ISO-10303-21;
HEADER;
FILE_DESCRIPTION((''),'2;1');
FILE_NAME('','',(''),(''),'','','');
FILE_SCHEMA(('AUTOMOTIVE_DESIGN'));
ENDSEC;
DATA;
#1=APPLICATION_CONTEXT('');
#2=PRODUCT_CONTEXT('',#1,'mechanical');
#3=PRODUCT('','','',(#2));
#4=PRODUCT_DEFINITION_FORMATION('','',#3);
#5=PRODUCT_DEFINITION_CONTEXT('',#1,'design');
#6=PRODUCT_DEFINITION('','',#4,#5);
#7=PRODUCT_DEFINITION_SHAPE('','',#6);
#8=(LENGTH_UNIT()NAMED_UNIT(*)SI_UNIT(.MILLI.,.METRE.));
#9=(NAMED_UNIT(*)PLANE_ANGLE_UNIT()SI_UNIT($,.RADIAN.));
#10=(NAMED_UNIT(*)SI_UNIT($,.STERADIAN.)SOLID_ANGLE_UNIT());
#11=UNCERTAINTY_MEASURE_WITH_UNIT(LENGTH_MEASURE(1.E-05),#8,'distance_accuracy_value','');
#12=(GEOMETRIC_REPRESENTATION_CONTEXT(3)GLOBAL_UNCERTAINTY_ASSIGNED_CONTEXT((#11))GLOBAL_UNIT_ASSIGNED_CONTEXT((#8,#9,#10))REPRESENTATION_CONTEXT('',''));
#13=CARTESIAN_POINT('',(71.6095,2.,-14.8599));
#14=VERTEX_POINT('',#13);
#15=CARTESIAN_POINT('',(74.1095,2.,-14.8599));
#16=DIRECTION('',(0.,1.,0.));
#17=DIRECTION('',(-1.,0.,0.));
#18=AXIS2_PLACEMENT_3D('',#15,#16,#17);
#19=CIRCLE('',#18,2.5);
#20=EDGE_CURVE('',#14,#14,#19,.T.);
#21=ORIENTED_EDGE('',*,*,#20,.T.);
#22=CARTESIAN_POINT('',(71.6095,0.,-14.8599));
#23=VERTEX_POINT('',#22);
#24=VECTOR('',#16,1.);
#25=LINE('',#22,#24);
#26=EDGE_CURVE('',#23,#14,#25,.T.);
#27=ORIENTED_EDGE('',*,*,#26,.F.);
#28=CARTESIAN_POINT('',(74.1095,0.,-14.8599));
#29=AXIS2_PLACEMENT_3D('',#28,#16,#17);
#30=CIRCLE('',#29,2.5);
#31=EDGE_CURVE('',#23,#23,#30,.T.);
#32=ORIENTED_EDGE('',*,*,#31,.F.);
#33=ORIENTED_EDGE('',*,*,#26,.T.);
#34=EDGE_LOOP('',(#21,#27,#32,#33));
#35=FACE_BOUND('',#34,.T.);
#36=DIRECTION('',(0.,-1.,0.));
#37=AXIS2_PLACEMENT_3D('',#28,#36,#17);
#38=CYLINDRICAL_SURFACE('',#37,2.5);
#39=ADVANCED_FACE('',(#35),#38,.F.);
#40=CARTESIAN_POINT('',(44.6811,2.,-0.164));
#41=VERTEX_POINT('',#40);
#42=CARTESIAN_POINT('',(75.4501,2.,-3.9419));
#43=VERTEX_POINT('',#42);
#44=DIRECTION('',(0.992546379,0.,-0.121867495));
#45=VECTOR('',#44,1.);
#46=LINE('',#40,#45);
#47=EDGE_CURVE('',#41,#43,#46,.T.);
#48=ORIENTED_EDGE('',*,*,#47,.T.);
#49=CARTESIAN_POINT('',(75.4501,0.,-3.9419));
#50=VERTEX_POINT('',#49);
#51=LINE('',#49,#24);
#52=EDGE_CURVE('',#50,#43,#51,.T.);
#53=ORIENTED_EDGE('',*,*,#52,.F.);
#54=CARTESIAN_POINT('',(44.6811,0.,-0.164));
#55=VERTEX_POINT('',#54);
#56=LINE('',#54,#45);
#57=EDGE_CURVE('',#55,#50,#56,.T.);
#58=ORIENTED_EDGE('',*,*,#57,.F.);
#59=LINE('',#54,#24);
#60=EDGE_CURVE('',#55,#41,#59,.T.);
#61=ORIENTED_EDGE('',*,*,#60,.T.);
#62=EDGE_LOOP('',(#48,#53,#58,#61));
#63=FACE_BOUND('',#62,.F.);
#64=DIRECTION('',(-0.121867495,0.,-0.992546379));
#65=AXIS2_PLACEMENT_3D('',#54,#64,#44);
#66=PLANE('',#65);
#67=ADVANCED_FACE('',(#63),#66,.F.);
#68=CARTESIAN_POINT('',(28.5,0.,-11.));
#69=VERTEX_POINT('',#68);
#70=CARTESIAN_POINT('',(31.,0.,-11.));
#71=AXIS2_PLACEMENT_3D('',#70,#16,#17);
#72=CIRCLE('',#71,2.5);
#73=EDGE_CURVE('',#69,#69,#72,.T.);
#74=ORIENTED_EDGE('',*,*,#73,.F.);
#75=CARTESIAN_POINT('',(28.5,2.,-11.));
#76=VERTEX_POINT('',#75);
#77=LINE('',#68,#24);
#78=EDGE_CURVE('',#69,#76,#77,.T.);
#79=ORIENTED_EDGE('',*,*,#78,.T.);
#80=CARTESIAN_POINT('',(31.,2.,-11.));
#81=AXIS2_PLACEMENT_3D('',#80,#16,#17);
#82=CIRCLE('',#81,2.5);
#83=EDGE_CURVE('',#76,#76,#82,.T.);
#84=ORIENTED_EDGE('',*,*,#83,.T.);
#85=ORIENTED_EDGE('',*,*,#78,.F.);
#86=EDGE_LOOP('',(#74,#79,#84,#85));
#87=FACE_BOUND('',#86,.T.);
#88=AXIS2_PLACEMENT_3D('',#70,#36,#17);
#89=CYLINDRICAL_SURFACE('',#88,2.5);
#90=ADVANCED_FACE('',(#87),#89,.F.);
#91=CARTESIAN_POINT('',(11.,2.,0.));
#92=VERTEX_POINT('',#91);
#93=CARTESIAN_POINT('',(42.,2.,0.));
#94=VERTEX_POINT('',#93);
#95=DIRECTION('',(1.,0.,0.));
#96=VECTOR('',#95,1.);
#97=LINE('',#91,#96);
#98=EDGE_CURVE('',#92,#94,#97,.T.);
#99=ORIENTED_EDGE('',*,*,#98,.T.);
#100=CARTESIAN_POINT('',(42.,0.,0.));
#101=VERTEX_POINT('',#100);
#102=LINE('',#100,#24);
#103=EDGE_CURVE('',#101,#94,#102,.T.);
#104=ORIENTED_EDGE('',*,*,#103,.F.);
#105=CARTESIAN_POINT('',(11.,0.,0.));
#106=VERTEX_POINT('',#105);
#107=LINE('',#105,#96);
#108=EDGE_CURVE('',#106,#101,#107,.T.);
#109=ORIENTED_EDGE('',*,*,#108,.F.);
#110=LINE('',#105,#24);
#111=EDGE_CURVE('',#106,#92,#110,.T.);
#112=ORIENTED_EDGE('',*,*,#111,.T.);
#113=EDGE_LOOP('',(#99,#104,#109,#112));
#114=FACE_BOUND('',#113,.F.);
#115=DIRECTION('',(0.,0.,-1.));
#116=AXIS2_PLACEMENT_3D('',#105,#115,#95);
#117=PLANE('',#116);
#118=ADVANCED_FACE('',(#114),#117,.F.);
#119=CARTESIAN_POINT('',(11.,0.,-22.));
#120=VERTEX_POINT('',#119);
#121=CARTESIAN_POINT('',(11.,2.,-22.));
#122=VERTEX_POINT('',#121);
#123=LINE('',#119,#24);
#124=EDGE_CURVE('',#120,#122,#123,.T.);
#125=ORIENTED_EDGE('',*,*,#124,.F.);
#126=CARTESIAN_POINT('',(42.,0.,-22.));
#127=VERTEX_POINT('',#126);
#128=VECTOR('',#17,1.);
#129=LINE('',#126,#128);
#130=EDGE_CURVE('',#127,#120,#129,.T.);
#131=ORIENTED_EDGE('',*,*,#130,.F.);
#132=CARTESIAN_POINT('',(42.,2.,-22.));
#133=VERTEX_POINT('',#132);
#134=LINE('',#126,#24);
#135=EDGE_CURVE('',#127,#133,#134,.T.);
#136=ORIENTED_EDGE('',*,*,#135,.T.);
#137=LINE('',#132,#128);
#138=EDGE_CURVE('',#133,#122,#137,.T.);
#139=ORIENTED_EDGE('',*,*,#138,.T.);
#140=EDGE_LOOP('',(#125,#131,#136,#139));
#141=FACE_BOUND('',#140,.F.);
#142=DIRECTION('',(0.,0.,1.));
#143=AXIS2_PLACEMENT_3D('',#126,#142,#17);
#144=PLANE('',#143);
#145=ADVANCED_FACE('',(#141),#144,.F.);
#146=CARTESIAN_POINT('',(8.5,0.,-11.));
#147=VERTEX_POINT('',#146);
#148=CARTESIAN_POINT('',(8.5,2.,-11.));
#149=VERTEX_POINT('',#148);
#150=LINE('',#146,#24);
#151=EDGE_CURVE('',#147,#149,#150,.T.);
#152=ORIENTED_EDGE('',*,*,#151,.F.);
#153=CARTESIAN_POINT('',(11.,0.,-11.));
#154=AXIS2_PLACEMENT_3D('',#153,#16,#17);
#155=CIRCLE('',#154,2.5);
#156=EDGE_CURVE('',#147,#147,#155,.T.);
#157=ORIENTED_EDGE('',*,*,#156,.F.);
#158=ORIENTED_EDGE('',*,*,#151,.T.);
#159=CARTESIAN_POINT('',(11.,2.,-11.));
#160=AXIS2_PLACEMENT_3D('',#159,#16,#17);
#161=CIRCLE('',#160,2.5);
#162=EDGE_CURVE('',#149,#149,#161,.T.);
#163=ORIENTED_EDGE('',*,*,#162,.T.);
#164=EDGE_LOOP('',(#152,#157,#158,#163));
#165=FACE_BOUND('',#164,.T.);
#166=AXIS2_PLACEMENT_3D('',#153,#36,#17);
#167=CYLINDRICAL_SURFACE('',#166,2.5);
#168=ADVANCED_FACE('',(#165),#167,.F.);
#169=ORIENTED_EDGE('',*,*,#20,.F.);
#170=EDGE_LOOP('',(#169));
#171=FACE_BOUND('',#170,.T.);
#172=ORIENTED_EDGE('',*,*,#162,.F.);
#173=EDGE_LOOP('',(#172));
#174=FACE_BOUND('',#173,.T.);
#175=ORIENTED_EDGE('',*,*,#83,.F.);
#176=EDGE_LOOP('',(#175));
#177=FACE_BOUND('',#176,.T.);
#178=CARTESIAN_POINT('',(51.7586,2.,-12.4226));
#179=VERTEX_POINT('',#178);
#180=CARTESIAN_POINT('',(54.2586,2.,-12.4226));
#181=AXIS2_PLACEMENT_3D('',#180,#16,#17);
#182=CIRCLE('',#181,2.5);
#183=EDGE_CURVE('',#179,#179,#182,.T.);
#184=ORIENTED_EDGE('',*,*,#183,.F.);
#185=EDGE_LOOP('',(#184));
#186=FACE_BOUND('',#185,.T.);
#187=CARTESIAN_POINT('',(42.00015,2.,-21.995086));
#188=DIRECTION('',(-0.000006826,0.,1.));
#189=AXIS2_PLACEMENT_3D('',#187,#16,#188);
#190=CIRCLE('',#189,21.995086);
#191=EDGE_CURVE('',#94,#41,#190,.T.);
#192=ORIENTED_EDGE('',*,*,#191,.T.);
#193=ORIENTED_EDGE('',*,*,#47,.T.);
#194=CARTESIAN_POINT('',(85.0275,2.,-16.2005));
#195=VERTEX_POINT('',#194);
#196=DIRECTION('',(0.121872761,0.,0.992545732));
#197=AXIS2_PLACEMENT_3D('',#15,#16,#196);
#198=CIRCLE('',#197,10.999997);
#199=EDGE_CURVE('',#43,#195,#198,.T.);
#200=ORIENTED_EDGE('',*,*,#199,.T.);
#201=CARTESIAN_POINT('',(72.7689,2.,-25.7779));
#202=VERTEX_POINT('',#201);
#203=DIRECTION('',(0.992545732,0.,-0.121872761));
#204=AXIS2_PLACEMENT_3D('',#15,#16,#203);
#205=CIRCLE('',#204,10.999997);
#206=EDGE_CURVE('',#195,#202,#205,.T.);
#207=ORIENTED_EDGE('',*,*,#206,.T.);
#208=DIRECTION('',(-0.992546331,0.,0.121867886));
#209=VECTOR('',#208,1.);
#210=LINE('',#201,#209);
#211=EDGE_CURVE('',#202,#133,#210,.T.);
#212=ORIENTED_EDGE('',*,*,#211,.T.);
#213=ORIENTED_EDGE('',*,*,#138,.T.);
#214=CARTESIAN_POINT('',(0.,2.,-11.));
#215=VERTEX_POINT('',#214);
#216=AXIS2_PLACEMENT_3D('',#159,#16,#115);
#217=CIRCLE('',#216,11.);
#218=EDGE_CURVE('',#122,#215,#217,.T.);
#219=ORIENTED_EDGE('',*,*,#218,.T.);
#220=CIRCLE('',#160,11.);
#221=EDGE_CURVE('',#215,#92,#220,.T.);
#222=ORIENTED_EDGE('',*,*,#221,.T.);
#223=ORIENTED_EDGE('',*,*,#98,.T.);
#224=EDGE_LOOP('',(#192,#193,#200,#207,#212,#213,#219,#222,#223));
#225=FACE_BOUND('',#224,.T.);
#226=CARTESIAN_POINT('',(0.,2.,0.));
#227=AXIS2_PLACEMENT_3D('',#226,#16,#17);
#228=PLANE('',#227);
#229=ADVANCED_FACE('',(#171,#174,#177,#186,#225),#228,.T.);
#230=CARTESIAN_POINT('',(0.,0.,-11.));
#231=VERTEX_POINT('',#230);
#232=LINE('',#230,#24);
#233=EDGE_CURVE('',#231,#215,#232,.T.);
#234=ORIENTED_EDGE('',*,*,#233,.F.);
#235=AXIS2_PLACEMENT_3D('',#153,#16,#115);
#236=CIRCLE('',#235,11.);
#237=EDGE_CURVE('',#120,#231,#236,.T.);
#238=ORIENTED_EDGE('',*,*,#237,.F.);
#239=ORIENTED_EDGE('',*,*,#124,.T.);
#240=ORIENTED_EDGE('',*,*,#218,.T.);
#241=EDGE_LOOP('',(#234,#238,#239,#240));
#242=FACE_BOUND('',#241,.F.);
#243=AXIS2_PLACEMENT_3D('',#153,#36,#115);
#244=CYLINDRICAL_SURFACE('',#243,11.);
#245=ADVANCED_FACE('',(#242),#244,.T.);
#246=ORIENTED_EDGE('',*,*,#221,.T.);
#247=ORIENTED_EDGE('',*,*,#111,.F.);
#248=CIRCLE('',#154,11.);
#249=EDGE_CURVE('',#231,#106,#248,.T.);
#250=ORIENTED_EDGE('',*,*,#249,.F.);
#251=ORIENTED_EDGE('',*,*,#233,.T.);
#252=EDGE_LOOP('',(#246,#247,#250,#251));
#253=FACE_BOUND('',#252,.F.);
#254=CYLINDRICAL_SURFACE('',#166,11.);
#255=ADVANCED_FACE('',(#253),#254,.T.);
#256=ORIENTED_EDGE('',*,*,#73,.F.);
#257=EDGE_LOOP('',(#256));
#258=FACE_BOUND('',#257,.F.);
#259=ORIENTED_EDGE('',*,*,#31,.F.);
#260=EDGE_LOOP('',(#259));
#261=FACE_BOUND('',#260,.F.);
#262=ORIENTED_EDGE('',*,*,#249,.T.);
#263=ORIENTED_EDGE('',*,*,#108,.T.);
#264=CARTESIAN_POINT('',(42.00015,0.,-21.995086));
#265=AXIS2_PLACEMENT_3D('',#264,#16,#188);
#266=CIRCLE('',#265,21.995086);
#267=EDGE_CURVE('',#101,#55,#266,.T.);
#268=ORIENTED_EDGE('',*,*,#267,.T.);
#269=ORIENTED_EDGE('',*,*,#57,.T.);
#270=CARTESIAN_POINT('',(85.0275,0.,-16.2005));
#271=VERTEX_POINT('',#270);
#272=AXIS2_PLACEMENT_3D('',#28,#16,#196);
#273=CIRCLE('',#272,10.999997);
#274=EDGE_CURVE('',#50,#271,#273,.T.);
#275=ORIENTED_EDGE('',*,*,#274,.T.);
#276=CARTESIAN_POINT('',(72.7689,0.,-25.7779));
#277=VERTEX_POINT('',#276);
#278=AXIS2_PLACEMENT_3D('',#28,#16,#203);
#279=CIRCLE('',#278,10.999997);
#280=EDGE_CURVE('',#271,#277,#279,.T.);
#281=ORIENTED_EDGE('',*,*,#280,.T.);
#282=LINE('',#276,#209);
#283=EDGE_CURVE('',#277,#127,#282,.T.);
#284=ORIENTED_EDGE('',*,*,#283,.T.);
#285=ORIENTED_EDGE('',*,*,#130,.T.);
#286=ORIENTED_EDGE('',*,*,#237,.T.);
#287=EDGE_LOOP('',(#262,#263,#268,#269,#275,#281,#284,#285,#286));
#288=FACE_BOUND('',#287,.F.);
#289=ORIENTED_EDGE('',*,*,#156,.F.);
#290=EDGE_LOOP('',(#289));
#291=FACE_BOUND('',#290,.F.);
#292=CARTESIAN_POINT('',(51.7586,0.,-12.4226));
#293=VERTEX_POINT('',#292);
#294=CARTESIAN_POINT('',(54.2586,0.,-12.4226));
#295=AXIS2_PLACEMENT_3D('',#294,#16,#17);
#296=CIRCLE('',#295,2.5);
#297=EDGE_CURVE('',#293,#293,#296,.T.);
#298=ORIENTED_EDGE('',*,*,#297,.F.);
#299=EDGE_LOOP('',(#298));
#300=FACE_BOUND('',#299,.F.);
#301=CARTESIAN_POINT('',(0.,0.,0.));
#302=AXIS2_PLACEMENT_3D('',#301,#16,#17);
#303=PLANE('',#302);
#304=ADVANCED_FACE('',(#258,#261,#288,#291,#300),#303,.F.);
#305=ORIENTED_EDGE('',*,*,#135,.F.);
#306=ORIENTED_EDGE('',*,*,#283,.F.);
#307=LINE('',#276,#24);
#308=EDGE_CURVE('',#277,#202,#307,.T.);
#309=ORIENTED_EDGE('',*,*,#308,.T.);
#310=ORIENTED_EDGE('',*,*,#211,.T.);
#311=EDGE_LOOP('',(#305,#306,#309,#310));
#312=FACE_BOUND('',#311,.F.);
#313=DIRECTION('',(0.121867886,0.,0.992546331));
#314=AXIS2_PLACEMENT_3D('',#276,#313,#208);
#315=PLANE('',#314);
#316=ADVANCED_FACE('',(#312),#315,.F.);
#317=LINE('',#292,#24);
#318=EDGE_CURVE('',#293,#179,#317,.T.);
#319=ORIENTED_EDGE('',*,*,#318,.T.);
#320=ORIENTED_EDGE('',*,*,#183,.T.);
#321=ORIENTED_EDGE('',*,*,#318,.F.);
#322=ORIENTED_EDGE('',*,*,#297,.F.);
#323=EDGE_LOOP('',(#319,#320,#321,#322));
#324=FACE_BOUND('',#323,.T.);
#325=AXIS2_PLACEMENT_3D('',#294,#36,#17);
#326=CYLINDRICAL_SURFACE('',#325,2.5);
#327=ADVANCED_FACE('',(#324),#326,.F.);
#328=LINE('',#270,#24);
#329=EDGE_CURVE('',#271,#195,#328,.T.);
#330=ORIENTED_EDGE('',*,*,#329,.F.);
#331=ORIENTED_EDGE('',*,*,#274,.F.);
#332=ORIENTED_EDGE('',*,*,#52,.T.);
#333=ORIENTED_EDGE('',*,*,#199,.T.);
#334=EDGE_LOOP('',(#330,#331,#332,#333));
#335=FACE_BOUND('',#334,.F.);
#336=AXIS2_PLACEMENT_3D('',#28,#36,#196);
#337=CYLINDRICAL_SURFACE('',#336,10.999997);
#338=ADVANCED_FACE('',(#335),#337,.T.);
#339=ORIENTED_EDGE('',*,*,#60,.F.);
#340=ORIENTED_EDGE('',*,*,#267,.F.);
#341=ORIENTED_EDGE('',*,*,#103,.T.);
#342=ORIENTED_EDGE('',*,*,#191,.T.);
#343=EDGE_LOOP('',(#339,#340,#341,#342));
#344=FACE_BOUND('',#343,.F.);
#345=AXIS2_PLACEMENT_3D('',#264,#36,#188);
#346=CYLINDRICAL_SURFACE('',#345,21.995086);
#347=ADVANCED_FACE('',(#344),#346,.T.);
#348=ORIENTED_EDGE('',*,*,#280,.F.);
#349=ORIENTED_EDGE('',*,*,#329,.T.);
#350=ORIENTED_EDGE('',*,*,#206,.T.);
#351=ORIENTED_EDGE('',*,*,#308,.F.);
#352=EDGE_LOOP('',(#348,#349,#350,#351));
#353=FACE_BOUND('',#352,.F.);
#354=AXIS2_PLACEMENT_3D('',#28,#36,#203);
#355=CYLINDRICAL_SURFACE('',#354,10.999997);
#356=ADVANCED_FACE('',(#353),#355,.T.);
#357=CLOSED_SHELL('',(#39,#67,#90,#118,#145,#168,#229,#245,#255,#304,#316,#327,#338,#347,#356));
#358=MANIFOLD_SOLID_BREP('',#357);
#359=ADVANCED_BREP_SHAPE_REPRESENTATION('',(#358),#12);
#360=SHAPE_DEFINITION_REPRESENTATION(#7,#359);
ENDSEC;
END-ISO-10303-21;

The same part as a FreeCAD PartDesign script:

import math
import FreeCAD as App
import Part
import Sketcher
Q = App.Units.Quantity

doc = App.newDocument("Part")
body = doc.addObject("PartDesign::Body", "Body")

sketch1 = body.newObject("Sketcher::SketchObject", "Sketch")
sketch1.AttachmentSupport = (doc.getObject("XZ_Plane"), [""])
sketch1.MapMode = "FlatFace"
sketch1.addGeometry(Part.ArcOfCircle(Part.Circle(App.Vector(11, -11, 0), App.Vector(0, 0, 1), 11), math.radians(90), math.radians(270)), False)
sketch1.addGeometry(Part.LineSegment(App.Vector(11, 0, 0), App.Vector(42, 0, 0)), False)
sketch1.addGeometry(Part.ArcOfCircle(Part.Circle(App.Vector(42.00015, -21.995086, 0), App.Vector(0, 0, 1), 21.995086), math.radians(82.998889), math.radians(90.000391)), False)
sketch1.addGeometry(Part.LineSegment(App.Vector(44.6811, -0.164, 0), App.Vector(75.4501, -3.9419, 0)), False)
sketch1.addGeometry(Part.ArcOfCircle(Part.Circle(App.Vector(74.1095, -14.8599, 0), App.Vector(0, 0, 1), 10.999997), math.radians(-97.000197), math.radians(82.999803)), False)
sketch1.addGeometry(Part.LineSegment(App.Vector(72.7689, -25.7779, 0), App.Vector(42, -22, 0)), False)
sketch1.addGeometry(Part.LineSegment(App.Vector(42, -22, 0), App.Vector(11, -22, 0)), False)
sketch1.addGeometry(Part.Circle(App.Vector(74.1095, -14.8599, 0), App.Vector(0, 0, 1), 2.5), False)
sketch1.addGeometry(Part.Circle(App.Vector(54.2586, -12.4226, 0), App.Vector(0, 0, 1), 2.5), False)
sketch1.addGeometry(Part.Circle(App.Vector(31, -11, 0), App.Vector(0, 0, 1), 2.5), False)
sketch1.addGeometry(Part.Circle(App.Vector(11, -11, 0), App.Vector(0, 0, 1), 2.5), False)
sketch1.addConstraint(Sketcher.Constraint("Coincident", 0, 1, 1, 1))
sketch1.addConstraint(Sketcher.Constraint("Coincident", 1, 2, 2, 2))
sketch1.addConstraint(Sketcher.Constraint("Coincident", 2, 1, 3, 1))
sketch1.addConstraint(Sketcher.Constraint("Coincident", 3, 2, 4, 2))
sketch1.addConstraint(Sketcher.Constraint("Coincident", 4, 1, 5, 1))
sketch1.addConstraint(Sketcher.Constraint("Coincident", 5, 2, 6, 1))
sketch1.addConstraint(Sketcher.Constraint("Coincident", 6, 2, 0, 2))
sketch1.addConstraint(Sketcher.Constraint("Horizontal", 1))
sketch1.addConstraint(Sketcher.Constraint("Horizontal", 6))
sketch1.addConstraint(Sketcher.Constraint("Coincident", 7, 3, 4, 3))
sketch1.addConstraint(Sketcher.Constraint("Coincident", 10, 3, 0, 3))
sketch1.addConstraint(Sketcher.Constraint("PointOnObject", 0, 1, -1))
sketch1.addConstraint(Sketcher.Constraint("Diameter", 7, Q("5 mm")))
sketch1.addConstraint(Sketcher.Constraint("Diameter", 8, Q("5 mm")))
sketch1.addConstraint(Sketcher.Constraint("Diameter", 9, Q("5 mm")))
sketch1.addConstraint(Sketcher.Constraint("Diameter", 10, Q("5 mm")))
sketch1.addConstraint(Sketcher.Constraint("Radius", 0, Q("11 mm")))
sketch1.addConstraint(Sketcher.Constraint("Radius", 4, Q("11 mm")))
sketch1.addConstraint(Sketcher.Constraint("DistanceX", -1, 1, 0, 3, Q("11 mm")))
sketch1.addConstraint(Sketcher.Constraint("DistanceY", 9, 3, -1, 1, Q("11 mm")))
sketch1.addConstraint(Sketcher.Constraint("DistanceX", -1, 1, 0, 1, Q("11 mm")))
sketch1.addConstraint(Sketcher.Constraint("DistanceX", -1, 1, 1, 2, Q("42 mm")))
sketch1.addConstraint(Sketcher.Constraint("DistanceX", -1, 1, 5, 2, Q("42 mm")))
sketch1.addConstraint(Sketcher.Constraint("DistanceX", -1, 1, 6, 2, Q("11 mm")))
sketch1.addConstraint(Sketcher.Constraint("DistanceX", 0, 3, 9, 3, Q("20 mm")))
sketch1.addConstraint(Sketcher.Constraint("Distance", 3, Q("31 mm")))
sketch1.addConstraint(Sketcher.Constraint("Distance", 5, Q("31 mm")))
sketch1.addConstraint(Sketcher.Constraint("Radius", 2, Q("21.995 mm")))
sketch1.addConstraint(Sketcher.Constraint("DistanceX", -1, 1, 2, 3, Q("42.0002 mm")))
sketch1.addConstraint(Sketcher.Constraint("DistanceY", 4, 3, -1, 1, Q("14.86 mm")))
sketch1.addConstraint(Sketcher.Constraint("DistanceX", -1, 1, 3, 2, Q("75.45 mm")))
sketch1.addConstraint(Sketcher.Constraint("DistanceY", 3, 2, -1, 1, Q("3.942 mm")))
sketch1.addConstraint(Sketcher.Constraint("DistanceX", 8, 3, 4, 3, Q("19.851 mm")))
sketch1.addConstraint(Sketcher.Constraint("DistanceY", 8, 3, -1, 1, Q("12.4226 mm")))
pad1 = body.newObject("PartDesign::Pad", "Pad")
pad1.Profile = sketch1
pad1.Length = 2
pad1.Reversed = True

doc.recompute()
